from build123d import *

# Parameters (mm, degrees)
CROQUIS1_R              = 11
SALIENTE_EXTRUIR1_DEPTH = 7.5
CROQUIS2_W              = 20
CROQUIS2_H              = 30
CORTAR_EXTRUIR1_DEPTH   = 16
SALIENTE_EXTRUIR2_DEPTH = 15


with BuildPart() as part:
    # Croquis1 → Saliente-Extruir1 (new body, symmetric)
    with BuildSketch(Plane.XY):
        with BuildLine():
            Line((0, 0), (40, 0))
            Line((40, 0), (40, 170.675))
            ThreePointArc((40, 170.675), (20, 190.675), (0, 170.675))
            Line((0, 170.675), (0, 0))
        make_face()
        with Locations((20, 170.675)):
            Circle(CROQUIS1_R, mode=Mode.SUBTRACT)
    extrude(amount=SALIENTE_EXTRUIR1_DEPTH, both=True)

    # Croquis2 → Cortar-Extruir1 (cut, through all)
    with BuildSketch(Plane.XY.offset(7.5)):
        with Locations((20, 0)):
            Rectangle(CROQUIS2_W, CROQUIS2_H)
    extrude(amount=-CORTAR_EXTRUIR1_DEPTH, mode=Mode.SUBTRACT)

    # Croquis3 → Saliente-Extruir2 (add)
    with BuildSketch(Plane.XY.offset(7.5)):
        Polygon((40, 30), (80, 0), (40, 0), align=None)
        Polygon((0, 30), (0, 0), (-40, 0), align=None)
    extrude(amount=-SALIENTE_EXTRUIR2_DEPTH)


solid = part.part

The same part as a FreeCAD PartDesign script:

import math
import FreeCAD as App
import Part
import Sketcher
from FreeCAD import Vector
Q = App.Units.Quantity

doc = App.newDocument("Part")
params = doc.addObject("Spreadsheet::Sheet", "Params")
for row, (alias, value) in enumerate([
    ("sketch1_diameter", "22 mm"),
    ("sketch1_radius", "20 mm"),
    ("pad1_length", "15 mm"),
    ("sketch2_width", "20 mm"),
    ("sketch2_height", "30 mm"),
    ("sketch3_width", "40 mm"),
    ("sketch3_height", "30 mm"),
    ("pad2_length", "15 mm"),
], start=1):
    params.set(f"A{row}", alias)
    params.set(f"B{row}", "=" + value)
    params.setAlias(f"B{row}", alias)

body = doc.addObject("PartDesign::Body", "Body")

sketch1 = body.newObject("Sketcher::SketchObject", "Sketch")
sketch1.AttachmentSupport = (doc.getObject("XY_Plane"), [""])
sketch1.MapMode = "FlatFace"
sketch1.addGeometry(Part.LineSegment(Vector(0, 0, 0), Vector(40, 0, 0)), False)
sketch1.addGeometry(Part.LineSegment(Vector(40, 0, 0), Vector(40, 170.675, 0)), False)
sketch1.addGeometry(Part.ArcOfCircle(Part.Circle(Vector(20, 170.675, 0), Vector(0, 0, 1), 20), math.radians(0), math.radians(180)), False)
sketch1.addGeometry(Part.LineSegment(Vector(0, 170.675, 0), Vector(0, 0, 0)), False)
sketch1.addGeometry(Part.Circle(Vector(20, 170.675, 0), Vector(0, 0, 1), 11), False)
sketch1.addConstraint(Sketcher.Constraint("Coincident", 0, 2, 1, 1))
sketch1.addConstraint(Sketcher.Constraint("Tangent", 1, 2, 2, 1))
sketch1.addConstraint(Sketcher.Constraint("Tangent", 2, 2, 3, 1))
sketch1.addConstraint(Sketcher.Constraint("Coincident", 3, 2, 0, 1))
sketch1.addConstraint(Sketcher.Constraint("Horizontal", 0))
sketch1.addConstraint(Sketcher.Constraint("Vertical", 1))
sketch1.addConstraint(Sketcher.Constraint("Vertical", 3))
sketch1.addConstraint(Sketcher.Constraint("Coincident", 3, 2, -1, 1))
sketch1.addConstraint(Sketcher.Constraint("Coincident", 4, 3, 2, 3))
sketch1.addConstraint(Sketcher.Constraint("Diameter", 4, Q("22 mm")))
sketch1.addConstraint(Sketcher.Constraint("Radius", 2, Q("20 mm")))
sketch1.addConstraint(Sketcher.Constraint("DistanceY", 1, 1, 1, 2, Q("170.675 mm")))
sketch1.setExpression("Constraints[9]", "Params.sketch1_diameter")
sketch1.setExpression("Constraints[10]", "Params.sketch1_radius")
pad1 = body.newObject("PartDesign::Pad", "Pad")
pad1.Profile = sketch1
pad1.setExpression("Length", "Params.pad1_length")
pad1.Midplane = True

sketch2 = body.newObject("Sketcher::SketchObject", "Sketch001")
sketch2.AttachmentSupport = (doc.getObject("XY_Plane"), [""])
sketch2.MapMode = "FlatFace"
sketch2.AttachmentOffset = App.Placement(Vector(0, 0, 7.5), App.Rotation())
sketch2.addGeometry(Part.LineSegment(Vector(10, 15, 0), Vector(10, -15, 0)), False)
sketch2.addGeometry(Part.LineSegment(Vector(10, -15, 0), Vector(30, -15, 0)), False)
sketch2.addGeometry(Part.LineSegment(Vector(30, -15, 0), Vector(30, 15, 0)), False)
sketch2.addGeometry(Part.LineSegment(Vector(30, 15, 0), Vector(10, 15, 0)), False)
sketch2.addConstraint(Sketcher.Constraint("Coincident", 0, 2, 1, 1))
sketch2.addConstraint(Sketcher.Constraint("Coincident", 1, 2, 2, 1))
sketch2.addConstraint(Sketcher.Constraint("Coincident", 2, 2, 3, 1))
sketch2.addConstraint(Sketcher.Constraint("Coincident", 3, 2, 0, 1))
sketch2.addConstraint(Sketcher.Constraint("Vertical", 0))
sketch2.addConstraint(Sketcher.Constraint("Horizontal", 1))
sketch2.addConstraint(Sketcher.Constraint("Vertical", 2))
sketch2.addConstraint(Sketcher.Constraint("Horizontal", 3))
sketch2.addConstraint(Sketcher.Constraint("DistanceX", 1, 1, 1, 2, Q("20 mm")))
sketch2.addConstraint(Sketcher.Constraint("DistanceY", 0, 2, 0, 1, Q("30 mm")))
sketch2.addConstraint(Sketcher.Constraint("DistanceX", -1, 1, 0, 2, Q("10 mm")))
sketch2.addConstraint(Sketcher.Constraint("DistanceY", 0, 2, -1, 1, Q("15 mm")))
sketch2.setExpression("Constraints[8]", "Params.sketch2_width")
sketch2.setExpression("Constraints[9]", "Params.sketch2_height")
pocket1 = body.newObject("PartDesign::Pocket", "Pocket")
pocket1.Profile = sketch2
pocket1.Type = "ThroughAll"

sketch3 = body.newObject("Sketcher::SketchObject", "Sketch002")
sketch3.AttachmentSupport = (doc.getObject("XY_Plane"), [""])
sketch3.MapMode = "FlatFace"
sketch3.AttachmentOffset = App.Placement(Vector(0, 0, 7.5), App.Rotation())
sketch3.addGeometry(Part.LineSegment(Vector(80, 0, 0), Vector(40, 30, 0)), False)
sketch3.addGeometry(Part.LineSegment(Vector(40, 30, 0), Vector(40, 0, 0)), False)
sketch3.addGeometry(Part.LineSegment(Vector(40, 0, 0), Vector(80, 0, 0)), False)
sketch3.addGeometry(Part.LineSegment(Vector(0, 0, 0), Vector(0, 30, 0)), False)
sketch3.addGeometry(Part.LineSegment(Vector(0, 30, 0), Vector(-40, 0, 0)), False)
sketch3.addGeometry(Part.LineSegment(Vector(-40, 0, 0), Vector(0, 0, 0)), False)
sketch3.addConstraint(Sketcher.Constraint("Coincident", 0, 2, 1, 1))
sketch3.addConstraint(Sketcher.Constraint("Coincident", 1, 2, 2, 1))
sketch3.addConstraint(Sketcher.Constraint("Coincident", 2, 2, 0, 1))
sketch3.addConstraint(Sketcher.Constraint("Coincident", 3, 2, 4, 1))
sketch3.addConstraint(Sketcher.Constraint("Coincident", 4, 2, 5, 1))
sketch3.addConstraint(Sketcher.Constraint("Coincident", 5, 2, 3, 1))
sketch3.addConstraint(Sketcher.Constraint("Vertical", 1))
sketch3.addConstraint(Sketcher.Constraint("Horizontal", 2))
sketch3.addConstraint(Sketcher.Constraint("Vertical", 3))
sketch3.addConstraint(Sketcher.Constraint("Horizontal", 5))
sketch3.addConstraint(Sketcher.Constraint("Coincident", 5, 2, -1, 1))
sketch3.addConstraint(Sketcher.Constraint("Symmetric", 1, 2, 4, 2, -1, 1))
sketch3.addConstraint(Sketcher.Constraint("Horizontal", 0, 2, 3, 2))
sketch3.addConstraint(Sketcher.Constraint("Equal", 2, 5))
sketch3.addConstraint(Sketcher.Constraint("DistanceX", 2, 1, 2, 2, Q("40 mm")))
sketch3.addConstraint(Sketcher.Constraint("DistanceY", 1, 2, 1, 1, Q("30 mm")))
sketch3.setExpression("Constraints[14]", "Params.sketch3_width")
sketch3.setExpression("Constraints[15]", "Params.sketch3_height")
pad2 = body.newObject("PartDesign::Pad", "Pad001")
pad2.Profile = sketch3
pad2.setExpression("Length", "Params.pad2_length")
pad2.Reversed = True

doc.recompute()
